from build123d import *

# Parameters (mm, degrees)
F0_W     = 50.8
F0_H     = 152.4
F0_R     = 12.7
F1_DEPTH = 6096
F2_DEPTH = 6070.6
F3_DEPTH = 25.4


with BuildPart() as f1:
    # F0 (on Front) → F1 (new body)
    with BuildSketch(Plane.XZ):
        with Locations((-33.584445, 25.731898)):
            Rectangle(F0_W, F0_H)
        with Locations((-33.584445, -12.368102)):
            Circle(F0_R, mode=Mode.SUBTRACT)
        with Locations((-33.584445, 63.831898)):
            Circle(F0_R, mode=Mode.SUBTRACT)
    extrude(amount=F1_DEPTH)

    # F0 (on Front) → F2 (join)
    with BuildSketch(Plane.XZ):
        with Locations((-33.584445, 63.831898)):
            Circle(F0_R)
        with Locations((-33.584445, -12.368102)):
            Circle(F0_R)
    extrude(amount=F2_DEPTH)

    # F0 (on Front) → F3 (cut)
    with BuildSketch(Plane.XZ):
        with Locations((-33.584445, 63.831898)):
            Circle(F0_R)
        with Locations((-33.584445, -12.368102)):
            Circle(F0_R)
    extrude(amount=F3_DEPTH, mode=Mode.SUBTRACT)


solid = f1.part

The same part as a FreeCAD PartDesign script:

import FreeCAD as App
import Part
import Sketcher
from FreeCAD import Vector
Q = App.Units.Quantity


def add_polygon(sketch, points):
    """Adds a closed chain of lines whose ends are joined by coincident constraints."""
    first, n = sketch.GeometryCount, len(points)
    for a, b in zip(points, points[1:] + points[:1]):
        sketch.addGeometry(Part.LineSegment(App.Vector(*a, 0), App.Vector(*b, 0)), False)
    for i in range(n):
        sketch.addConstraint(Sketcher.Constraint("Coincident", first + i, 2, first + (i + 1) % n, 1))

doc = App.newDocument("Part")
body = doc.addObject("PartDesign::Body", "Body")

sketch1 = body.newObject("Sketcher::SketchObject", "Sketch")
sketch1.AttachmentSupport = (doc.getObject("XZ_Plane"), [""])
sketch1.MapMode = "FlatFace"
add_polygon(sketch1, [(-58.984445, 101.931898), (-58.984445, -50.468102), (-8.184445, -50.468102), (-8.184445, 101.931898)])
sketch1.addGeometry(Part.Circle(Vector(-33.584445, -12.368102, 0), Vector(0, 0, 1), 12.7), False)
sketch1.addGeometry(Part.Circle(Vector(-33.584445, 63.831898, 0), Vector(0, 0, 1), 12.7), False)
sketch1.addConstraint(Sketcher.Constraint("Vertical", 0))
sketch1.addConstraint(Sketcher.Constraint("Horizontal", 1))
sketch1.addConstraint(Sketcher.Constraint("Vertical", 2))
sketch1.addConstraint(Sketcher.Constraint("Horizontal", 3))
sketch1.addConstraint(Sketcher.Constraint("Equal", 4, 5))
sketch1.addConstraint(Sketcher.Constraint("Vertical", 4, 3, 5, 3))
sketch1.addConstraint(Sketcher.Constraint("Diameter", 4, Q("1 in")))
sketch1.addConstraint(Sketcher.Constraint("DistanceX", 1, 1, 1, 2, Q("2 in")))
sketch1.addConstraint(Sketcher.Constraint("DistanceY", 0, 2, 0, 1, Q("6 in")))
sketch1.addConstraint(Sketcher.Constraint("DistanceY", 4, 3, 5, 3, Q("3 in")))
sketch1.addConstraint(Sketcher.Constraint("DistanceX", 0, 2, 4, 3, Q("1 in")))
sketch1.addConstraint(Sketcher.Constraint("DistanceY", 0, 2, 4, 3, Q("1.5 in")))
sketch1.addConstraint(Sketcher.Constraint("DistanceY", -1, 1, 5, 3, Q("63.831898 mm")))
sketch1.addConstraint(Sketcher.Constraint("DistanceX", 4, 3, -1, 1, Q("33.584445 mm")))
pad1 = body.newObject("PartDesign::Pad", "Pad")
pad1.Profile = sketch1
pad1.Length = Q("240 in")

sketch2 = body.newObject("Sketcher::SketchObject", "Sketch001")
sketch2.AttachmentSupport = (doc.getObject("XZ_Plane"), [""])
sketch2.MapMode = "FlatFace"
sketch2.addGeometry(Part.Circle(Vector(-33.584445, 63.831898, 0), Vector(0, 0, 1), 12.7), False)
sketch2.addGeometry(Part.Circle(Vector(-33.584445, -12.368102, 0), Vector(0, 0, 1), 12.7), False)
sketch2.addConstraint(Sketcher.Constraint("Equal", 0, 1))
sketch2.addConstraint(Sketcher.Constraint("Vertical", 0, 3, 1, 3))
sketch2.addConstraint(Sketcher.Constraint("Diameter", 0, Q("1 in")))
sketch2.addConstraint(Sketcher.Constraint("DistanceY", 1, 3, 0, 3, Q("3 in")))
sketch2.addConstraint(Sketcher.Constraint("DistanceY", -1, 1, 0, 3, Q("63.831898 mm")))
sketch2.addConstraint(Sketcher.Constraint("DistanceX", 0, 3, -1, 1, Q("33.584445 mm")))
pad2 = body.newObject("PartDesign::Pad", "Pad001")
pad2.Profile = sketch2
pad2.Length = Q("239 in")

sketch3 = body.newObject("Sketcher::SketchObject", "Sketch002")
sketch3.AttachmentSupport = (doc.getObject("XZ_Plane"), [""])
sketch3.MapMode = "FlatFace"
sketch3.addGeometry(Part.Circle(Vector(-33.584445, 63.831898, 0), Vector(0, 0, 1), 12.7), False)
sketch3.addGeometry(Part.Circle(Vector(-33.584445, -12.368102, 0), Vector(0, 0, 1), 12.7), False)
sketch3.addConstraint(Sketcher.Constraint("Equal", 0, 1))
sketch3.addConstraint(Sketcher.Constraint("Vertical", 0, 3, 1, 3))
sketch3.addConstraint(Sketcher.Constraint("Diameter", 0, Q("1 in")))
sketch3.addConstraint(Sketcher.Constraint("DistanceY", 1, 3, 0, 3, Q("3 in")))
sketch3.addConstraint(Sketcher.Constraint("DistanceY", -1, 1, 0, 3, Q("63.831898 mm")))
sketch3.addConstraint(Sketcher.Constraint("DistanceX", 0, 3, -1, 1, Q("33.584445 mm")))
pocket1 = body.newObject("PartDesign::Pocket", "Pocket")
pocket1.Profile = sketch3
pocket1.Length = Q("1 in")
pocket1.Reversed = True

doc.recompute()
